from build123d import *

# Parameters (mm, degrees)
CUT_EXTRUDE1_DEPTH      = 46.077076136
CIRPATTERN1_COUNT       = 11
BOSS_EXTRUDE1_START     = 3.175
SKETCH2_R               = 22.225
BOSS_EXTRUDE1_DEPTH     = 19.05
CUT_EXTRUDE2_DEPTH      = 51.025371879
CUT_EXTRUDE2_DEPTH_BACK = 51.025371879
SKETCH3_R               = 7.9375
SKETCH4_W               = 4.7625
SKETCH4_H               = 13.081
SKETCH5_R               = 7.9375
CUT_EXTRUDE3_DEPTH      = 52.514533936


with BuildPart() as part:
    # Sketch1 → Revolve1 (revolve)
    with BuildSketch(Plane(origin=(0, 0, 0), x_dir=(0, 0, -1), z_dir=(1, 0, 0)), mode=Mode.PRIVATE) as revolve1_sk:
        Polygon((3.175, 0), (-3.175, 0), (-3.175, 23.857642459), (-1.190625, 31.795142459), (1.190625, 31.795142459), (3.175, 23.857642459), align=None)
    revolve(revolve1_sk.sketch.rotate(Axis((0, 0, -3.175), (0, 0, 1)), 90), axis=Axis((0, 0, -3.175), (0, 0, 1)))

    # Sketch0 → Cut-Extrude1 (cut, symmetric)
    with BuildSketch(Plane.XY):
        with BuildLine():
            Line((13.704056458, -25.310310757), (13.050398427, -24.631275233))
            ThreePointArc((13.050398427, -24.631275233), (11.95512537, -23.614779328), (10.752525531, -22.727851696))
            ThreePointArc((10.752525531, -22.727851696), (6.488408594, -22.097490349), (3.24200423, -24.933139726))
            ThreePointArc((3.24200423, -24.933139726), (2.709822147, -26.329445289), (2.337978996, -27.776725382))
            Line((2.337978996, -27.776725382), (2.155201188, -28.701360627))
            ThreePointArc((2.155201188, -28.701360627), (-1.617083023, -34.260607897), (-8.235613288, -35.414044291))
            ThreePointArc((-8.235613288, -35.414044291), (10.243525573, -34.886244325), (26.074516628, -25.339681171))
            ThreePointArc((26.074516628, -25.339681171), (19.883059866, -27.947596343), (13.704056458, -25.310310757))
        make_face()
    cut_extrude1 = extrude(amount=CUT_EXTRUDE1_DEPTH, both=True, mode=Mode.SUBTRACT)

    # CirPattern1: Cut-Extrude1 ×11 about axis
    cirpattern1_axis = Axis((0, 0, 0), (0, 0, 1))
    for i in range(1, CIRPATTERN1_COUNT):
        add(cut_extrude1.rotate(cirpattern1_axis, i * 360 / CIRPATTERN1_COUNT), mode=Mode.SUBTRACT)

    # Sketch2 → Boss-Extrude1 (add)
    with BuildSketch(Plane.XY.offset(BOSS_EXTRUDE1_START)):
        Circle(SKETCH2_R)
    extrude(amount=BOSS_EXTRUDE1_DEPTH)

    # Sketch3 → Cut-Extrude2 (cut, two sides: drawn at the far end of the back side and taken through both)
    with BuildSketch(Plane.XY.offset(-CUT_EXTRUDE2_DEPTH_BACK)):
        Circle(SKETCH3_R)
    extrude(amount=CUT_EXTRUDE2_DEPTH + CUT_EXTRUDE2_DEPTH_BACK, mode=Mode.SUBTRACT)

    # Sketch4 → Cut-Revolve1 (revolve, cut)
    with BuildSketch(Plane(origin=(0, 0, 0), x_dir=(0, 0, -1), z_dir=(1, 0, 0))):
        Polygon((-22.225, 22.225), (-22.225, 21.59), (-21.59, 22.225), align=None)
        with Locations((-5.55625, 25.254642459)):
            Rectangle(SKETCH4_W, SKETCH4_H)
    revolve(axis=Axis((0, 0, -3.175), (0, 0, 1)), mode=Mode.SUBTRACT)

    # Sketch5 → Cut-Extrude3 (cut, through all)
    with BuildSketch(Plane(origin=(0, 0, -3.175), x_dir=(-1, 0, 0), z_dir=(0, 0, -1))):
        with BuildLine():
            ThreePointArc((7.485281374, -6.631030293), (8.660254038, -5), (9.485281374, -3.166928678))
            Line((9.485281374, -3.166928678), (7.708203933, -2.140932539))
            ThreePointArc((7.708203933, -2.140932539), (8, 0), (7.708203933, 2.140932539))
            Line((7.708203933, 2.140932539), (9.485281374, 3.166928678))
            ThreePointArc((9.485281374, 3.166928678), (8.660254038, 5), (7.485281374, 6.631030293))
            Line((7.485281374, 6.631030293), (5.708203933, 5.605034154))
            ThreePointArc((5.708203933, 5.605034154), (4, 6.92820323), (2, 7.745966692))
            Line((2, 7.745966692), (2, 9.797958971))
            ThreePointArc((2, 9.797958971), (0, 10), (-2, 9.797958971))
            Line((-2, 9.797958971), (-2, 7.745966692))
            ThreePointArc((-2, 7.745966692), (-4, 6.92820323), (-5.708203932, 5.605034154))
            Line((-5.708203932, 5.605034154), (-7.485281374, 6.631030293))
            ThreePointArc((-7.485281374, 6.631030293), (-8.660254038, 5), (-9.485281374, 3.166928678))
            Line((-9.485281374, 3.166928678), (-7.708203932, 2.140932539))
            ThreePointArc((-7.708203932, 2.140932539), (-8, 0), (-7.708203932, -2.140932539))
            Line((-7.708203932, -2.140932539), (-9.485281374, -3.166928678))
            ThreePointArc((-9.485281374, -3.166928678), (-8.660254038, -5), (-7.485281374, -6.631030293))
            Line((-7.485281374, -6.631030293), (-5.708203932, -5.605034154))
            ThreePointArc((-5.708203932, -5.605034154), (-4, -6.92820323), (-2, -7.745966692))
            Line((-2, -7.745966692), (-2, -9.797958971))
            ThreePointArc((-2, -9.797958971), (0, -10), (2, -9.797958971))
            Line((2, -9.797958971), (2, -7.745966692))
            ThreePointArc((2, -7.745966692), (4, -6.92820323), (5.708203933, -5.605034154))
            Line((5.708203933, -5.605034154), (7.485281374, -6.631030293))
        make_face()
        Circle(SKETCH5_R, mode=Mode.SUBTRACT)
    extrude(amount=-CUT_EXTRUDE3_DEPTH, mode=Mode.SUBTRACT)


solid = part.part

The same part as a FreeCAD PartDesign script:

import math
import FreeCAD as App
import Part
import Sketcher
Q = App.Units.Quantity

doc = App.newDocument("Part")
body = doc.addObject("PartDesign::Body", "Body")

sketch1 = body.newObject("Sketcher::SketchObject", "Sketch")
sketch1.AttachmentSupport = (doc.getObject("YZ_Plane"), [""])
sketch1.MapMode = "FlatFace"
sketch1.addGeometry([
    Part.LineSegment(App.Vector(0, 3.2, 0), App.Vector(0, -3.2, 0)),
    Part.LineSegment(App.Vector(0, -3.2, 0), App.Vector(23.9, -3.2, 0)),
    Part.LineSegment(App.Vector(23.9, -3.2, 0), App.Vector(31.8, -1.2, 0)),
    Part.LineSegment(App.Vector(31.8, -1.2, 0), App.Vector(31.8, 1.2, 0)),
    Part.LineSegment(App.Vector(31.8, 1.2, 0), App.Vector(23.9, 3.2, 0)),
    Part.LineSegment(App.Vector(23.9, 3.2, 0), App.Vector(0, 3.2, 0)),
], False)
sketch1.addConstraint([
    Sketcher.Constraint("Coincident", 0, 2, 1, 1),
    Sketcher.Constraint("Coincident", 1, 2, 2, 1),
    Sketcher.Constraint("Coincident", 2, 2, 3, 1),
    Sketcher.Constraint("Coincident", 3, 2, 4, 1),
    Sketcher.Constraint("Coincident", 4, 2, 5, 1),
    Sketcher.Constraint("Coincident", 5, 2, 0, 1),
    Sketcher.Constraint("Vertical", 0),
    Sketcher.Constraint("Horizontal", 1),
    Sketcher.Constraint("Vertical", 3),
    Sketcher.Constraint("Horizontal", 5),
    Sketcher.Constraint("Symmetric", 0, 2, 5, 2, -1, 1),
    Sketcher.Constraint("Vertical", 1, 2, 4, 2),
    Sketcher.Constraint("Equal", 2, 4),
    Sketcher.Constraint("DistanceY", 0, 2, 0, 1, Q("0.25 in")),
    Sketcher.Constraint("DistanceY", 3, 1, 3, 2, Q("0.09375 in")),
    Sketcher.Constraint("DistanceX", 1, 2, 2, 2, Q("0.3125 in")),
    Sketcher.Constraint("DistanceX", 1, 1, 1, 2, Q("23.857642 mm")),
])
revolution = body.newObject("PartDesign::Revolution", "Revolution")
revolution.Profile = sketch1
revolution.ReferenceAxis = (sketch1, ["V_Axis"])
revolution.Angle = 360

sketch2 = body.newObject("Sketcher::SketchObject", "Sketch001")
sketch2.AttachmentSupport = (doc.getObject("XY_Plane"), [""])
sketch2.MapMode = "FlatFace"
sketch2.addGeometry([
    Part.LineSegment(App.Vector(13.7, -25.3, 0), App.Vector(13.1, -24.6, 0)),
    Part.ArcOfCircle(Part.Circle(App.Vector(3.5, -33.8, 0), App.Vector(0, 0, 1), 13.3), math.radians(43.91), math.radians(56.82)),
    Part.ArcOfCircle(Part.Circle(App.Vector(7.9, -27, 0), App.Vector(0, 0, 1), 5.1), math.radians(57), math.radians(156)),
    Part.ArcOfCircle(Part.Circle(App.Vector(15.4, -30.4, 0), App.Vector(0, 0, 1), 13.3), math.radians(155.91), math.radians(168.82)),
    Part.LineSegment(App.Vector(2.3, -27.8, 0), App.Vector(2.2, -28.7, 0)),
    Part.ArcOfCircle(Part.Circle(App.Vector(-6.3, -27, 0), App.Vector(0, 0, 1), 8.6), math.radians(-103), math.radians(-11)),
    Part.ArcOfCircle(Part.Circle(App.Vector(0, 0, 0), App.Vector(0, 0, 1), 36.4), math.radians(-103), math.radians(-44)),
    Part.ArcOfCircle(Part.Circle(App.Vector(19.9, -19.3, 0), App.Vector(0, 0, 1), 8.6), math.radians(-136), math.radians(-44)),
], False)
sketch2.addConstraint([
    Sketcher.Constraint("Tangent", 0, 2, 1, 1),
    Sketcher.Constraint("Tangent", 1, 2, 2, 1),
    Sketcher.Constraint("Tangent", 2, 2, 3, 1),
    Sketcher.Constraint("Tangent", 3, 2, 4, 1),
    Sketcher.Constraint("Tangent", 4, 2, 5, 2),
    Sketcher.Constraint("Tangent", 5, 1, 6, 1),
    Sketcher.Constraint("Tangent", 6, 2, 7, 2),
    Sketcher.Constraint("Tangent", 7, 1, 0, 1),
    Sketcher.Constraint("Coincident", 6, 3, -1, 1),
    Sketcher.Constraint("Equal", 1, 3),
    Sketcher.Constraint("Equal", 5, 7),
    Sketcher.Constraint("Horizontal", 2, 3, 5, 3),
    Sketcher.Constraint("Equal", 0, 4),
    Sketcher.Constraint("Radius", 1, Q("0.5225 in")),
    Sketcher.Constraint("Radius", 2, Q("0.2025 in")),
    Sketcher.Constraint("DistanceX", 5, 3, 2, 3, Q("0.56 in")),
    Sketcher.Constraint("DistanceX", -1, 1, 2, 3, Q("0.3125 in")),
    Sketcher.Constraint("Radius", 6, Q("36.359041 mm")),
    Sketcher.Constraint("Radius", 5, Q("8.605053 mm")),
    Sketcher.Constraint("DistanceX", 1, 2, 3, 3, Q("0.1812999 in")),
    Sketcher.Constraint("DistanceY", 1, 3, 1, 2, Q("0.4373001 in")),
])
pocket1 = body.newObject("PartDesign::Pocket", "Pocket")
pocket1.Profile = sketch2
pocket1.Length = 92.154152
pocket1.Midplane = True
doc.recompute()

polarpattern = body.newObject("PartDesign::PolarPattern", "PolarPattern")
polarpattern.Originals = [pocket1]
polarpattern.Axis = (doc.getObject("Z_Axis"), [""])
polarpattern.Angle = 360
polarpattern.Occurrences = 11
body.Tip = polarpattern

sketch3 = body.newObject("Sketcher::SketchObject", "Sketch002")
sketch3.AttachmentSupport = (doc.getObject("XY_Plane"), [""])
sketch3.MapMode = "FlatFace"
sketch3.AttachmentOffset = App.Placement(App.Vector(0, 0, 0.125 * 25.4), App.Rotation())
sketch3.addGeometry(Part.Circle(App.Vector(0, 0, 0), App.Vector(0, 0, 1), 22), False)
sketch3.addConstraint([
    Sketcher.Constraint("Coincident", 0, 3, -1, 1),
    Sketcher.Constraint("Diameter", 0, Q("1.75 in")),
])
pad1 = body.newObject("PartDesign::Pad", "Pad")
pad1.Profile = sketch3
pad1.Length = Q("0.75 in")

sketch4 = body.newObject("Sketcher::SketchObject", "Sketch003")
sketch4.AttachmentSupport = (doc.getObject("XY_Plane"), [""])
sketch4.MapMode = "FlatFace"
sketch4.addGeometry(Part.Circle(App.Vector(0, 0, 0), App.Vector(0, 0, 1), 8), False)
sketch4.addConstraint([
    Sketcher.Constraint("Coincident", 0, 3, -1, 1),
    Sketcher.Constraint("Diameter", 0, Q("0.625 in")),
])
pocket2 = body.newObject("PartDesign::Pocket", "Pocket001")
pocket2.Profile = sketch4
pocket2.Type = "ThroughAll"
pocket2.Midplane = True

sketch5 = body.newObject("Sketcher::SketchObject", "Sketch004")
sketch5.AttachmentSupport = (doc.getObject("YZ_Plane"), [""])
sketch5.MapMode = "FlatFace"
sketch5.addGeometry([
    Part.LineSegment(App.Vector(22.2, 22.2, 0), App.Vector(21.6, 22.2, 0)),
    Part.LineSegment(App.Vector(21.6, 22.2, 0), App.Vector(22.2, 21.6, 0)),
    Part.LineSegment(App.Vector(22.2, 21.6, 0), App.Vector(22.2, 22.2, 0)),
    Part.LineSegment(App.Vector(31.8, 7.9, 0), App.Vector(18.7, 7.9, 0)),
    Part.LineSegment(App.Vector(18.7, 7.9, 0), App.Vector(18.7, 3.2, 0)),
    Part.LineSegment(App.Vector(18.7, 3.2, 0), App.Vector(31.8, 3.2, 0)),
    Part.LineSegment(App.Vector(31.8, 3.2, 0), App.Vector(31.8, 7.9, 0)),
], False)
sketch5.addConstraint([
    Sketcher.Constraint("Coincident", 0, 2, 1, 1),
    Sketcher.Constraint("Coincident", 1, 2, 2, 1),
    Sketcher.Constraint("Coincident", 2, 2, 0, 1),
    Sketcher.Constraint("Coincident", 3, 2, 4, 1),
    Sketcher.Constraint("Coincident", 4, 2, 5, 1),
    Sketcher.Constraint("Coincident", 5, 2, 6, 1),
    Sketcher.Constraint("Coincident", 6, 2, 3, 1),
    Sketcher.Constraint("Horizontal", 0),
    Sketcher.Constraint("Vertical", 2),
    Sketcher.Constraint("Horizontal", 3),
    Sketcher.Constraint("Vertical", 4),
    Sketcher.Constraint("Horizontal", 5),
    Sketcher.Constraint("Vertical", 6),
    Sketcher.Constraint("Equal", 0, 2),
    Sketcher.Constraint("DistanceX", 0, 2, 0, 1, Q("0.025 in")),
    Sketcher.Constraint("DistanceX", 3, 2, 3, 1, Q("0.515 in")),
    Sketcher.Constraint("DistanceY", 4, 2, 4, 1, Q("0.1875 in")),
    Sketcher.Constraint("DistanceX", -1, 1, 0, 2, Q("0.85 in")),
    Sketcher.Constraint("DistanceY", -1, 1, 1, 2, Q("0.85 in")),
    Sketcher.Constraint("DistanceY", 4, 2, 0, 2, Q("0.75 in")),
    Sketcher.Constraint("DistanceX", -1, 1, 3, 2, Q("18.714142 mm")),
])
groove = body.newObject("PartDesign::Groove", "Groove")
groove.Profile = sketch5
groove.ReferenceAxis = (sketch5, ["V_Axis"])
groove.Angle = 360

sketch6 = body.newObject("Sketcher::SketchObject", "Sketch005")
sketch6.AttachmentSupport = (doc.getObject("XY_Plane"), [""])
sketch6.MapMode = "FlatFace"
sketch6.AttachmentOffset = App.Placement(App.Vector(0, 0, -0.125 * 25.4), App.Rotation())
sketch6.addGeometry([
    Part.ArcOfCircle(Part.Circle(App.Vector(0, 0, 0), App.Vector(0, 0, 1), 10), math.radians(-162), math.radians(-138)),
    Part.LineSegment(App.Vector(-9.5, -3.2, 0), App.Vector(-7.7, -2.1, 0)),
    Part.ArcOfCircle(Part.Circle(App.Vector(0, 0, 0), App.Vector(0, 0, 1), 8), math.radians(164), math.radians(196)),
    Part.LineSegment(App.Vector(-7.7, 2.1, 0), App.Vector(-9.5, 3.2, 0)),
    Part.ArcOfCircle(Part.Circle(App.Vector(0, 0, 0), App.Vector(0, 0, 1), 10), math.radians(138), math.radians(162)),
    Part.LineSegment(App.Vector(-7.5, 6.6, 0), App.Vector(-5.7, 5.6, 0)),
    Part.ArcOfCircle(Part.Circle(App.Vector(0, 0, 0), App.Vector(0, 0, 1), 8), math.radians(104), math.radians(136)),
    Part.LineSegment(App.Vector(-2, 7.7, 0), App.Vector(-2, 9.8, 0)),
    Part.ArcOfCircle(Part.Circle(App.Vector(0, 0, 0), App.Vector(0, 0, 1), 10), math.radians(78), math.radians(102)),
    Part.LineSegment(App.Vector(2, 9.8, 0), App.Vector(2, 7.7, 0)),
    Part.ArcOfCircle(Part.Circle(App.Vector(0, 0, 0), App.Vector(0, 0, 1), 8), math.radians(44), math.radians(76)),
    Part.LineSegment(App.Vector(5.7, 5.6, 0), App.Vector(7.5, 6.6, 0)),
    Part.ArcOfCircle(Part.Circle(App.Vector(0, 0, 0), App.Vector(0, 0, 1), 10), math.radians(18), math.radians(42)),
    Part.LineSegment(App.Vector(9.5, 3.2, 0), App.Vector(7.7, 2.1, 0)),
    Part.ArcOfCircle(Part.Circle(App.Vector(0, 0, 0), App.Vector(0, 0, 1), 8), math.radians(-16), math.radians(16)),
    Part.LineSegment(App.Vector(7.7, -2.1, 0), App.Vector(9.5, -3.2, 0)),
    Part.ArcOfCircle(Part.Circle(App.Vector(0, 0, 0), App.Vector(0, 0, 1), 10), math.radians(-42), math.radians(-18)),
    Part.LineSegment(App.Vector(7.5, -6.6, 0), App.Vector(5.7, -5.6, 0)),
    Part.ArcOfCircle(Part.Circle(App.Vector(0, 0, 0), App.Vector(0, 0, 1), 8), math.radians(-76), math.radians(-44)),
    Part.LineSegment(App.Vector(2, -7.7, 0), App.Vector(2, -9.8, 0)),
    Part.ArcOfCircle(Part.Circle(App.Vector(0, 0, 0), App.Vector(0, 0, 1), 10), math.radians(-102), math.radians(-78)),
    Part.LineSegment(App.Vector(-2, -9.8, 0), App.Vector(-2, -7.7, 0)),
    Part.ArcOfCircle(Part.Circle(App.Vector(0, 0, 0), App.Vector(0, 0, 1), 8), math.radians(-136), math.radians(-104)),
    Part.LineSegment(App.Vector(-5.7, -5.6, 0), App.Vector(-7.5, -6.6, 0)),
    Part.Circle(App.Vector(0, 0, 0), App.Vector(0, 0, 1), 7.9),
], False)
sketch6.addConstraint([
    Sketcher.Constraint("Coincident", 0, 1, 1, 1),
    Sketcher.Constraint("Coincident", 1, 2, 2, 2),
    Sketcher.Constraint("Coincident", 2, 1, 3, 1),
    Sketcher.Constraint("Coincident", 3, 2, 4, 2),
    Sketcher.Constraint("Coincident", 4, 1, 5, 1),
    Sketcher.Constraint("Coincident", 5, 2, 6, 2),
    Sketcher.Constraint("Coincident", 6, 1, 7, 1),
    Sketcher.Constraint("Coincident", 7, 2, 8, 2),
    Sketcher.Constraint("Coincident", 8, 1, 9, 1),
    Sketcher.Constraint("Coincident", 9, 2, 10, 2),
    Sketcher.Constraint("Coincident", 10, 1, 11, 1),
    Sketcher.Constraint("Coincident", 11, 2, 12, 2),
    Sketcher.Constraint("Coincident", 12, 1, 13, 1),
    Sketcher.Constraint("Coincident", 13, 2, 14, 2),
    Sketcher.Constraint("Coincident", 14, 1, 15, 1),
    Sketcher.Constraint("Coincident", 15, 2, 16, 2),
    Sketcher.Constraint("Coincident", 16, 1, 17, 1),
    Sketcher.Constraint("Coincident", 17, 2, 18, 2),
    Sketcher.Constraint("Coincident", 18, 1, 19, 1),
    Sketcher.Constraint("Coincident", 19, 2, 20, 2),
    Sketcher.Constraint("Coincident", 20, 1, 21, 1),
    Sketcher.Constraint("Coincident", 21, 2, 22, 2),
    Sketcher.Constraint("Coincident", 22, 1, 23, 1),
    Sketcher.Constraint("Coincident", 23, 2, 0, 2),
    Sketcher.Constraint("Vertical", 7),
    Sketcher.Constraint("Vertical", 9),
    Sketcher.Constraint("Vertical", 19),
    Sketcher.Constraint("Vertical", 21),
    Sketcher.Constraint("Coincident", 0, 3, -1, 1),
    Sketcher.Constraint("Coincident", 2, 3, -1, 1),
    Sketcher.Constraint("Coincident", 4, 3, -1, 1),
    Sketcher.Constraint("Coincident", 6, 3, -1, 1),
    Sketcher.Constraint("Coincident", 8, 3, -1, 1),
    Sketcher.Constraint("Coincident", 10, 3, -1, 1),
    Sketcher.Constraint("Coincident", 12, 3, -1, 1),
    Sketcher.Constraint("Coincident", 14, 3, -1, 1),
    Sketcher.Constraint("Coincident", 16, 3, -1, 1),
    Sketcher.Constraint("Coincident", 18, 3, -1, 1),
    Sketcher.Constraint("Coincident", 20, 3, -1, 1),
    Sketcher.Constraint("Coincident", 22, 3, -1, 1),
    Sketcher.Constraint("Coincident", 24, 3, -1, 1),
    Sketcher.Constraint("Equal", 0, 4),
    Sketcher.Constraint("Equal", 2, 6),
    Sketcher.Constraint("Equal", 4, 8),
    Sketcher.Constraint("Equal", 6, 10),
    Sketcher.Constraint("Equal", 8, 12),
    Sketcher.Constraint("Equal", 10, 14),
    Sketcher.Constraint("Equal", 12, 16),
    Sketcher.Constraint("Equal", 14, 18),
    Sketcher.Constraint("Equal", 16, 20),
    Sketcher.Constraint("Equal", 18, 22),
    Sketcher.Constraint("Parallel", 3, 5),
    Sketcher.Constraint("Parallel", 1, 11),
    Sketcher.Constraint("Parallel", 11, 13),
    Sketcher.Constraint("Parallel", 5, 15),
    Sketcher.Constraint("Parallel", 15, 17),
    Sketcher.Constraint("Parallel", 13, 23),
    Sketcher.Constraint("Horizontal", 7, 2, 8, 1),
    Sketcher.Constraint("Horizontal", 5, 2, 10, 1),
    Sketcher.Constraint("Horizontal", 4, 1, 11, 2),
    Sketcher.Constraint("Horizontal", 3, 2, 12, 1),
    Sketcher.Constraint("Horizontal", 1, 2, 14, 1),
    Sketcher.Constraint("Horizontal", 19, 2, 20, 1),
    Sketcher.Constraint("Horizontal", 17, 2, 22, 1),
    Sketcher.Constraint("Vertical", 1, 2, 2, 1),
    Sketcher.Constraint("Vertical", 11, 2, 16, 1),
    Sketcher.Constraint("Vertical", 9, 2, 18, 1),
    Sketcher.Constraint("Equal", 3, 5),
    Sketcher.Constraint("Diameter", 24, Q("0.625 in")),
    Sketcher.Constraint("Angle", 1, Q("30 deg")),
    Sketcher.Constraint("Radius", 0, Q("10 mm")),
    Sketcher.Constraint("Radius", 2, Q("8 mm")),
    Sketcher.Constraint("DistanceX", 6, 1, -1, 1, Q("2 mm")),
    Sketcher.Constraint("DistanceX", 3, 2, 4, 1, Q("2 mm")),
])
pocket3 = body.newObject("PartDesign::Pocket", "Pocket002")
pocket3.Profile = sketch6
pocket3.Type = "ThroughAll"
pocket3.Reversed = True

doc.recompute()
